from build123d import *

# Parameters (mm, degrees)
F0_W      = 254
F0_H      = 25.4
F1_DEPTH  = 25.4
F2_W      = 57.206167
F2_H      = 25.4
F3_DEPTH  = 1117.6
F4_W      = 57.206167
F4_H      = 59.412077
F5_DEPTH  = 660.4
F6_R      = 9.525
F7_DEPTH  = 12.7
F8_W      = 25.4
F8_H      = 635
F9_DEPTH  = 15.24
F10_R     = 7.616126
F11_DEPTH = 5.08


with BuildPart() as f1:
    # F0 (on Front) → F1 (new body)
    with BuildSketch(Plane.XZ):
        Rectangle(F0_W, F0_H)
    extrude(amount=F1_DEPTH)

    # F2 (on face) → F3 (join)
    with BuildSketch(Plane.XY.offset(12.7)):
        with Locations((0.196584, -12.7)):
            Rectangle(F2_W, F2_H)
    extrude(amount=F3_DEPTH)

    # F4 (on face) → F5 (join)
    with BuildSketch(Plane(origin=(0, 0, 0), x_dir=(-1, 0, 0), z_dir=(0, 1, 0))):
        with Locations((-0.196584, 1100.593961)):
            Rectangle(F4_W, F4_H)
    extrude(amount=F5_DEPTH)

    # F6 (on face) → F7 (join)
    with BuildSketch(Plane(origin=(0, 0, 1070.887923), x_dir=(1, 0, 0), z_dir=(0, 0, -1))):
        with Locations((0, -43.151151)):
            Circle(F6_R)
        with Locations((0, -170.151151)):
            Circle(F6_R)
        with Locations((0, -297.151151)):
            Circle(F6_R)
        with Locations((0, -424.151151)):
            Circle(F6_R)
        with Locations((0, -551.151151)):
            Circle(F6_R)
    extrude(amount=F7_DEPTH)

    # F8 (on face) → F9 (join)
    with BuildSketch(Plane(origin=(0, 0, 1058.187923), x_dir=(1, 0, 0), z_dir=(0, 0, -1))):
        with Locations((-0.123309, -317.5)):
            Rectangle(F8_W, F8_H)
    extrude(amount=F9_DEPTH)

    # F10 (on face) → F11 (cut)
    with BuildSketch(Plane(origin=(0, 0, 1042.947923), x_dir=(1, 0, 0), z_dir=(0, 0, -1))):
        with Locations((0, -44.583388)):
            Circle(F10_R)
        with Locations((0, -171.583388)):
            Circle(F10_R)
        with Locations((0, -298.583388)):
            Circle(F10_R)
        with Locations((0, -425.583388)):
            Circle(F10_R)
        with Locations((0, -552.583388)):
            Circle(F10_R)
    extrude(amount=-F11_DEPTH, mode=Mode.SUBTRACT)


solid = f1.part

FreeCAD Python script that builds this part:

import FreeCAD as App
import Part
import Sketcher

V = App.Vector
Q = App.Units.Quantity


def add_polygon(sketch, points):
    """Adds a closed chain of lines whose ends are joined by coincident constraints."""
    first, n = sketch.GeometryCount, len(points)
    for a, b in zip(points, points[1:] + points[:1]):
        sketch.addGeometry(Part.LineSegment(App.Vector(*a, 0), App.Vector(*b, 0)), False)
    for i in range(n):
        sketch.addConstraint(Sketcher.Constraint("Coincident", first + i, 2, first + (i + 1) % n, 1))

doc = App.newDocument("Part")
body = doc.addObject("PartDesign::Body", "Body")

# Sketch on XZ plane
sketch1 = body.newObject("Sketcher::SketchObject", "Sketch")
sketch1.AttachmentSupport = (doc.getObject("XZ_Plane"), [""])
sketch1.MapMode = "FlatFace"
add_polygon(sketch1, [(-127, 12.7), (-127, -12.7), (127, -12.7), (127, 12.7)])  # lines 0-3
sketch1.addConstraint([
    Sketcher.Constraint("Vertical", 0),
    Sketcher.Constraint("Horizontal", 1),
    Sketcher.Constraint("Vertical", 2),
    Sketcher.Constraint("Horizontal", 3),
    Sketcher.Constraint("Symmetric", 0, 2, 2, 2, -1, 1),
    Sketcher.Constraint("DistanceX", 1, 1, 1, 2, Q("10 in")),
    Sketcher.Constraint("DistanceY", 0, 2, 0, 1, Q("1 in")),
])
pad1 = body.newObject("PartDesign::Pad", "Pad")
pad1.Profile = sketch1
pad1.Length = Q("1 in")

# Sketch on XY plane
sketch2 = body.newObject("Sketcher::SketchObject", "Sketch001")
sketch2.AttachmentSupport = (doc.getObject("XY_Plane"), [""])
sketch2.MapMode = "FlatFace"
sketch2.AttachmentOffset = App.Placement(V(0, 0, 0.5 * 25.4), App.Rotation())
add_polygon(sketch2, [(-28.406499, 0), (-28.406499, -25.4), (28.799668, -25.4), (28.799668, 0)])  # lines 0-3
sketch2.addConstraint([
    Sketcher.Constraint("Vertical", 0),
    Sketcher.Constraint("Horizontal", 1),
    Sketcher.Constraint("Vertical", 2),
    Sketcher.Constraint("Horizontal", 3),
    Sketcher.Constraint("PointOnObject", 2, 2, -1),
    Sketcher.Constraint("DistanceY", 0, 2, 0, 1, Q("1 in")),
    Sketcher.Constraint("DistanceX", 0, 2, -1, 1, Q("28.406499 mm")),
    Sketcher.Constraint("DistanceX", 1, 1, 1, 2, Q("57.206167 mm")),
])
pad2 = body.newObject("PartDesign::Pad", "Pad001")
pad2.Profile = sketch2
pad2.Length = Q("44 in")

# Sketch on XZ plane
sketch3 = body.newObject("Sketcher::SketchObject", "Sketch002")
sketch3.AttachmentSupport = (doc.getObject("XZ_Plane"), [""])
sketch3.MapMode = "FlatFace"
add_polygon(sketch3, [(28.799668, 1130.3), (28.799668, 1070.887923), (-28.406499, 1070.887923), (-28.406499, 1130.3)])  # lines 0-3
sketch3.addConstraint([
    Sketcher.Constraint("Vertical", 0),
    Sketcher.Constraint("Horizontal", 1),
    Sketcher.Constraint("Vertical", 2),
    Sketcher.Constraint("Horizontal", 3),
    Sketcher.Constraint("DistanceY", -1, 1, 2, 2, Q("44.5 in")),
    Sketcher.Constraint("DistanceX", 1, 2, -1, 1, Q("28.406499 mm")),
    Sketcher.Constraint("DistanceX", 1, 2, 1, 1, Q("57.206167 mm")),
    Sketcher.Constraint("DistanceY", 0, 2, 0, 1, Q("59.412077 mm")),
])
pad3 = body.newObject("PartDesign::Pad", "Pad002")
pad3.Profile = sketch3
pad3.Length = Q("26 in")
pad3.Reversed = True

# Sketch on XY plane
sketch4 = body.newObject("Sketcher::SketchObject", "Sketch003")
sketch4.AttachmentSupport = (doc.getObject("XY_Plane"), [""])
sketch4.MapMode = "FlatFace"
sketch4.AttachmentOffset = App.Placement(V(0, 0, 1070.887923), App.Rotation())
sketch4.addGeometry([
    Part.Circle(V(0, 43.151151, 0), V(0, 0, 1), 9.525),  # 0
    Part.Circle(V(0, 170.151151, 0), V(0, 0, 1), 9.525),  # 1
    Part.Circle(V(0, 297.151151, 0), V(0, 0, 1), 9.525),  # 2
    Part.Circle(V(0, 424.151151, 0), V(0, 0, 1), 9.525),  # 3
    Part.Circle(V(0, 551.151151, 0), V(0, 0, 1), 9.525),  # 4
], False)
sketch4.addConstraint([
    Sketcher.Constraint("Equal", 0, 1),
    Sketcher.Constraint("Equal", 1, 2),
    Sketcher.Constraint("Equal", 2, 3),
    Sketcher.Constraint("Equal", 3, 4),
    Sketcher.Constraint("PointOnObject", 0, 3, -2),
    Sketcher.Constraint("PointOnObject", 1, 3, -2),
    Sketcher.Constraint("PointOnObject", 2, 3, -2),
    Sketcher.Constraint("PointOnObject", 3, 3, -2),
    Sketcher.Constraint("PointOnObject", 4, 3, -2),
    Sketcher.Constraint("Diameter", 0, Q("0.75 in")),
    Sketcher.Constraint("DistanceY", 0, 3, 1, 3, Q("5 in")),
    Sketcher.Constraint("DistanceY", 1, 3, 2, 3, Q("5 in")),
    Sketcher.Constraint("DistanceY", 2, 3, 3, 3, Q("5 in")),
    Sketcher.Constraint("DistanceY", 3, 3, 4, 3, Q("5 in")),
    Sketcher.Constraint("DistanceY", -1, 1, 0, 3, Q("43.151151 mm")),
])
pad4 = body.newObject("PartDesign::Pad", "Pad003")
pad4.Profile = sketch4
pad4.Length = Q("0.5 in")
pad4.Reversed = True

# Sketch on XY plane
sketch5 = body.newObject("Sketcher::SketchObject", "Sketch004")
sketch5.AttachmentSupport = (doc.getObject("XY_Plane"), [""])
sketch5.MapMode = "FlatFace"
sketch5.AttachmentOffset = App.Placement(V(0, 0, 1058.187923), App.Rotation())
add_polygon(sketch5, [(-12.823309, 0), (-12.823309, 635), (12.576691, 635), (12.576691, 0)])  # lines 0-3
sketch5.addConstraint([
    Sketcher.Constraint("Vertical", 0),
    Sketcher.Constraint("Horizontal", 1),
    Sketcher.Constraint("Vertical", 2),
    Sketcher.Constraint("Horizontal", 3),
    Sketcher.Constraint("PointOnObject", 2, 2, -1),
    Sketcher.Constraint("DistanceX", 1, 1, 1, 2, Q("1 in")),
    Sketcher.Constraint("DistanceY", 0, 1, 0, 2, Q("25 in")),
    Sketcher.Constraint("DistanceX", 0, 2, -1, 1, Q("12.823309 mm")),
])
pad5 = body.newObject("PartDesign::Pad", "Pad004")
pad5.Profile = sketch5
pad5.Length = Q("0.6 in")
pad5.Reversed = True

# Sketch on XY plane
sketch6 = body.newObject("Sketcher::SketchObject", "Sketch005")
sketch6.AttachmentSupport = (doc.getObject("XY_Plane"), [""])
sketch6.MapMode = "FlatFace"
sketch6.AttachmentOffset = App.Placement(V(0, 0, 1042.947923), App.Rotation())
sketch6.addGeometry([
    Part.Circle(V(0, 44.583388, 0), V(0, 0, 1), 7.616126),  # 0
    Part.Circle(V(0, 171.583388, 0), V(0, 0, 1), 7.616126),  # 1
    Part.Circle(V(0, 298.583388, 0), V(0, 0, 1), 7.616126),  # 2
    Part.Circle(V(0, 425.583388, 0), V(0, 0, 1), 7.616126),  # 3
    Part.Circle(V(0, 552.583388, 0), V(0, 0, 1), 7.616126),  # 4
], False)
sketch6.addConstraint([
    Sketcher.Constraint("Equal", 0, 1),
    Sketcher.Constraint("Equal", 1, 2),
    Sketcher.Constraint("Equal", 2, 3),
    Sketcher.Constraint("Equal", 3, 4),
    Sketcher.Constraint("PointOnObject", 0, 3, -2),
    Sketcher.Constraint("PointOnObject", 1, 3, -2),
    Sketcher.Constraint("PointOnObject", 2, 3, -2),
    Sketcher.Constraint("PointOnObject", 3, 3, -2),
    Sketcher.Constraint("PointOnObject", 4, 3, -2),
    Sketcher.Constraint("DistanceY", 0, 3, 1, 3, Q("5 in")),
    Sketcher.Constraint("DistanceY", 1, 3, 2, 3, Q("5 in")),
    Sketcher.Constraint("DistanceY", 2, 3, 3, 3, Q("5 in")),
    Sketcher.Constraint("DistanceY", 3, 3, 4, 3, Q("5 in")),
    Sketcher.Constraint("Diameter", 0, Q("15.232252 mm")),
    Sketcher.Constraint("DistanceY", -1, 1, 1, 3, Q("171.583388 mm")),
])
pocket1 = body.newObject("PartDesign::Pocket", "Pocket")
pocket1.Profile = sketch6
pocket1.Length = Q("0.2 in")
pocket1.Reversed = True

doc.recompute()
